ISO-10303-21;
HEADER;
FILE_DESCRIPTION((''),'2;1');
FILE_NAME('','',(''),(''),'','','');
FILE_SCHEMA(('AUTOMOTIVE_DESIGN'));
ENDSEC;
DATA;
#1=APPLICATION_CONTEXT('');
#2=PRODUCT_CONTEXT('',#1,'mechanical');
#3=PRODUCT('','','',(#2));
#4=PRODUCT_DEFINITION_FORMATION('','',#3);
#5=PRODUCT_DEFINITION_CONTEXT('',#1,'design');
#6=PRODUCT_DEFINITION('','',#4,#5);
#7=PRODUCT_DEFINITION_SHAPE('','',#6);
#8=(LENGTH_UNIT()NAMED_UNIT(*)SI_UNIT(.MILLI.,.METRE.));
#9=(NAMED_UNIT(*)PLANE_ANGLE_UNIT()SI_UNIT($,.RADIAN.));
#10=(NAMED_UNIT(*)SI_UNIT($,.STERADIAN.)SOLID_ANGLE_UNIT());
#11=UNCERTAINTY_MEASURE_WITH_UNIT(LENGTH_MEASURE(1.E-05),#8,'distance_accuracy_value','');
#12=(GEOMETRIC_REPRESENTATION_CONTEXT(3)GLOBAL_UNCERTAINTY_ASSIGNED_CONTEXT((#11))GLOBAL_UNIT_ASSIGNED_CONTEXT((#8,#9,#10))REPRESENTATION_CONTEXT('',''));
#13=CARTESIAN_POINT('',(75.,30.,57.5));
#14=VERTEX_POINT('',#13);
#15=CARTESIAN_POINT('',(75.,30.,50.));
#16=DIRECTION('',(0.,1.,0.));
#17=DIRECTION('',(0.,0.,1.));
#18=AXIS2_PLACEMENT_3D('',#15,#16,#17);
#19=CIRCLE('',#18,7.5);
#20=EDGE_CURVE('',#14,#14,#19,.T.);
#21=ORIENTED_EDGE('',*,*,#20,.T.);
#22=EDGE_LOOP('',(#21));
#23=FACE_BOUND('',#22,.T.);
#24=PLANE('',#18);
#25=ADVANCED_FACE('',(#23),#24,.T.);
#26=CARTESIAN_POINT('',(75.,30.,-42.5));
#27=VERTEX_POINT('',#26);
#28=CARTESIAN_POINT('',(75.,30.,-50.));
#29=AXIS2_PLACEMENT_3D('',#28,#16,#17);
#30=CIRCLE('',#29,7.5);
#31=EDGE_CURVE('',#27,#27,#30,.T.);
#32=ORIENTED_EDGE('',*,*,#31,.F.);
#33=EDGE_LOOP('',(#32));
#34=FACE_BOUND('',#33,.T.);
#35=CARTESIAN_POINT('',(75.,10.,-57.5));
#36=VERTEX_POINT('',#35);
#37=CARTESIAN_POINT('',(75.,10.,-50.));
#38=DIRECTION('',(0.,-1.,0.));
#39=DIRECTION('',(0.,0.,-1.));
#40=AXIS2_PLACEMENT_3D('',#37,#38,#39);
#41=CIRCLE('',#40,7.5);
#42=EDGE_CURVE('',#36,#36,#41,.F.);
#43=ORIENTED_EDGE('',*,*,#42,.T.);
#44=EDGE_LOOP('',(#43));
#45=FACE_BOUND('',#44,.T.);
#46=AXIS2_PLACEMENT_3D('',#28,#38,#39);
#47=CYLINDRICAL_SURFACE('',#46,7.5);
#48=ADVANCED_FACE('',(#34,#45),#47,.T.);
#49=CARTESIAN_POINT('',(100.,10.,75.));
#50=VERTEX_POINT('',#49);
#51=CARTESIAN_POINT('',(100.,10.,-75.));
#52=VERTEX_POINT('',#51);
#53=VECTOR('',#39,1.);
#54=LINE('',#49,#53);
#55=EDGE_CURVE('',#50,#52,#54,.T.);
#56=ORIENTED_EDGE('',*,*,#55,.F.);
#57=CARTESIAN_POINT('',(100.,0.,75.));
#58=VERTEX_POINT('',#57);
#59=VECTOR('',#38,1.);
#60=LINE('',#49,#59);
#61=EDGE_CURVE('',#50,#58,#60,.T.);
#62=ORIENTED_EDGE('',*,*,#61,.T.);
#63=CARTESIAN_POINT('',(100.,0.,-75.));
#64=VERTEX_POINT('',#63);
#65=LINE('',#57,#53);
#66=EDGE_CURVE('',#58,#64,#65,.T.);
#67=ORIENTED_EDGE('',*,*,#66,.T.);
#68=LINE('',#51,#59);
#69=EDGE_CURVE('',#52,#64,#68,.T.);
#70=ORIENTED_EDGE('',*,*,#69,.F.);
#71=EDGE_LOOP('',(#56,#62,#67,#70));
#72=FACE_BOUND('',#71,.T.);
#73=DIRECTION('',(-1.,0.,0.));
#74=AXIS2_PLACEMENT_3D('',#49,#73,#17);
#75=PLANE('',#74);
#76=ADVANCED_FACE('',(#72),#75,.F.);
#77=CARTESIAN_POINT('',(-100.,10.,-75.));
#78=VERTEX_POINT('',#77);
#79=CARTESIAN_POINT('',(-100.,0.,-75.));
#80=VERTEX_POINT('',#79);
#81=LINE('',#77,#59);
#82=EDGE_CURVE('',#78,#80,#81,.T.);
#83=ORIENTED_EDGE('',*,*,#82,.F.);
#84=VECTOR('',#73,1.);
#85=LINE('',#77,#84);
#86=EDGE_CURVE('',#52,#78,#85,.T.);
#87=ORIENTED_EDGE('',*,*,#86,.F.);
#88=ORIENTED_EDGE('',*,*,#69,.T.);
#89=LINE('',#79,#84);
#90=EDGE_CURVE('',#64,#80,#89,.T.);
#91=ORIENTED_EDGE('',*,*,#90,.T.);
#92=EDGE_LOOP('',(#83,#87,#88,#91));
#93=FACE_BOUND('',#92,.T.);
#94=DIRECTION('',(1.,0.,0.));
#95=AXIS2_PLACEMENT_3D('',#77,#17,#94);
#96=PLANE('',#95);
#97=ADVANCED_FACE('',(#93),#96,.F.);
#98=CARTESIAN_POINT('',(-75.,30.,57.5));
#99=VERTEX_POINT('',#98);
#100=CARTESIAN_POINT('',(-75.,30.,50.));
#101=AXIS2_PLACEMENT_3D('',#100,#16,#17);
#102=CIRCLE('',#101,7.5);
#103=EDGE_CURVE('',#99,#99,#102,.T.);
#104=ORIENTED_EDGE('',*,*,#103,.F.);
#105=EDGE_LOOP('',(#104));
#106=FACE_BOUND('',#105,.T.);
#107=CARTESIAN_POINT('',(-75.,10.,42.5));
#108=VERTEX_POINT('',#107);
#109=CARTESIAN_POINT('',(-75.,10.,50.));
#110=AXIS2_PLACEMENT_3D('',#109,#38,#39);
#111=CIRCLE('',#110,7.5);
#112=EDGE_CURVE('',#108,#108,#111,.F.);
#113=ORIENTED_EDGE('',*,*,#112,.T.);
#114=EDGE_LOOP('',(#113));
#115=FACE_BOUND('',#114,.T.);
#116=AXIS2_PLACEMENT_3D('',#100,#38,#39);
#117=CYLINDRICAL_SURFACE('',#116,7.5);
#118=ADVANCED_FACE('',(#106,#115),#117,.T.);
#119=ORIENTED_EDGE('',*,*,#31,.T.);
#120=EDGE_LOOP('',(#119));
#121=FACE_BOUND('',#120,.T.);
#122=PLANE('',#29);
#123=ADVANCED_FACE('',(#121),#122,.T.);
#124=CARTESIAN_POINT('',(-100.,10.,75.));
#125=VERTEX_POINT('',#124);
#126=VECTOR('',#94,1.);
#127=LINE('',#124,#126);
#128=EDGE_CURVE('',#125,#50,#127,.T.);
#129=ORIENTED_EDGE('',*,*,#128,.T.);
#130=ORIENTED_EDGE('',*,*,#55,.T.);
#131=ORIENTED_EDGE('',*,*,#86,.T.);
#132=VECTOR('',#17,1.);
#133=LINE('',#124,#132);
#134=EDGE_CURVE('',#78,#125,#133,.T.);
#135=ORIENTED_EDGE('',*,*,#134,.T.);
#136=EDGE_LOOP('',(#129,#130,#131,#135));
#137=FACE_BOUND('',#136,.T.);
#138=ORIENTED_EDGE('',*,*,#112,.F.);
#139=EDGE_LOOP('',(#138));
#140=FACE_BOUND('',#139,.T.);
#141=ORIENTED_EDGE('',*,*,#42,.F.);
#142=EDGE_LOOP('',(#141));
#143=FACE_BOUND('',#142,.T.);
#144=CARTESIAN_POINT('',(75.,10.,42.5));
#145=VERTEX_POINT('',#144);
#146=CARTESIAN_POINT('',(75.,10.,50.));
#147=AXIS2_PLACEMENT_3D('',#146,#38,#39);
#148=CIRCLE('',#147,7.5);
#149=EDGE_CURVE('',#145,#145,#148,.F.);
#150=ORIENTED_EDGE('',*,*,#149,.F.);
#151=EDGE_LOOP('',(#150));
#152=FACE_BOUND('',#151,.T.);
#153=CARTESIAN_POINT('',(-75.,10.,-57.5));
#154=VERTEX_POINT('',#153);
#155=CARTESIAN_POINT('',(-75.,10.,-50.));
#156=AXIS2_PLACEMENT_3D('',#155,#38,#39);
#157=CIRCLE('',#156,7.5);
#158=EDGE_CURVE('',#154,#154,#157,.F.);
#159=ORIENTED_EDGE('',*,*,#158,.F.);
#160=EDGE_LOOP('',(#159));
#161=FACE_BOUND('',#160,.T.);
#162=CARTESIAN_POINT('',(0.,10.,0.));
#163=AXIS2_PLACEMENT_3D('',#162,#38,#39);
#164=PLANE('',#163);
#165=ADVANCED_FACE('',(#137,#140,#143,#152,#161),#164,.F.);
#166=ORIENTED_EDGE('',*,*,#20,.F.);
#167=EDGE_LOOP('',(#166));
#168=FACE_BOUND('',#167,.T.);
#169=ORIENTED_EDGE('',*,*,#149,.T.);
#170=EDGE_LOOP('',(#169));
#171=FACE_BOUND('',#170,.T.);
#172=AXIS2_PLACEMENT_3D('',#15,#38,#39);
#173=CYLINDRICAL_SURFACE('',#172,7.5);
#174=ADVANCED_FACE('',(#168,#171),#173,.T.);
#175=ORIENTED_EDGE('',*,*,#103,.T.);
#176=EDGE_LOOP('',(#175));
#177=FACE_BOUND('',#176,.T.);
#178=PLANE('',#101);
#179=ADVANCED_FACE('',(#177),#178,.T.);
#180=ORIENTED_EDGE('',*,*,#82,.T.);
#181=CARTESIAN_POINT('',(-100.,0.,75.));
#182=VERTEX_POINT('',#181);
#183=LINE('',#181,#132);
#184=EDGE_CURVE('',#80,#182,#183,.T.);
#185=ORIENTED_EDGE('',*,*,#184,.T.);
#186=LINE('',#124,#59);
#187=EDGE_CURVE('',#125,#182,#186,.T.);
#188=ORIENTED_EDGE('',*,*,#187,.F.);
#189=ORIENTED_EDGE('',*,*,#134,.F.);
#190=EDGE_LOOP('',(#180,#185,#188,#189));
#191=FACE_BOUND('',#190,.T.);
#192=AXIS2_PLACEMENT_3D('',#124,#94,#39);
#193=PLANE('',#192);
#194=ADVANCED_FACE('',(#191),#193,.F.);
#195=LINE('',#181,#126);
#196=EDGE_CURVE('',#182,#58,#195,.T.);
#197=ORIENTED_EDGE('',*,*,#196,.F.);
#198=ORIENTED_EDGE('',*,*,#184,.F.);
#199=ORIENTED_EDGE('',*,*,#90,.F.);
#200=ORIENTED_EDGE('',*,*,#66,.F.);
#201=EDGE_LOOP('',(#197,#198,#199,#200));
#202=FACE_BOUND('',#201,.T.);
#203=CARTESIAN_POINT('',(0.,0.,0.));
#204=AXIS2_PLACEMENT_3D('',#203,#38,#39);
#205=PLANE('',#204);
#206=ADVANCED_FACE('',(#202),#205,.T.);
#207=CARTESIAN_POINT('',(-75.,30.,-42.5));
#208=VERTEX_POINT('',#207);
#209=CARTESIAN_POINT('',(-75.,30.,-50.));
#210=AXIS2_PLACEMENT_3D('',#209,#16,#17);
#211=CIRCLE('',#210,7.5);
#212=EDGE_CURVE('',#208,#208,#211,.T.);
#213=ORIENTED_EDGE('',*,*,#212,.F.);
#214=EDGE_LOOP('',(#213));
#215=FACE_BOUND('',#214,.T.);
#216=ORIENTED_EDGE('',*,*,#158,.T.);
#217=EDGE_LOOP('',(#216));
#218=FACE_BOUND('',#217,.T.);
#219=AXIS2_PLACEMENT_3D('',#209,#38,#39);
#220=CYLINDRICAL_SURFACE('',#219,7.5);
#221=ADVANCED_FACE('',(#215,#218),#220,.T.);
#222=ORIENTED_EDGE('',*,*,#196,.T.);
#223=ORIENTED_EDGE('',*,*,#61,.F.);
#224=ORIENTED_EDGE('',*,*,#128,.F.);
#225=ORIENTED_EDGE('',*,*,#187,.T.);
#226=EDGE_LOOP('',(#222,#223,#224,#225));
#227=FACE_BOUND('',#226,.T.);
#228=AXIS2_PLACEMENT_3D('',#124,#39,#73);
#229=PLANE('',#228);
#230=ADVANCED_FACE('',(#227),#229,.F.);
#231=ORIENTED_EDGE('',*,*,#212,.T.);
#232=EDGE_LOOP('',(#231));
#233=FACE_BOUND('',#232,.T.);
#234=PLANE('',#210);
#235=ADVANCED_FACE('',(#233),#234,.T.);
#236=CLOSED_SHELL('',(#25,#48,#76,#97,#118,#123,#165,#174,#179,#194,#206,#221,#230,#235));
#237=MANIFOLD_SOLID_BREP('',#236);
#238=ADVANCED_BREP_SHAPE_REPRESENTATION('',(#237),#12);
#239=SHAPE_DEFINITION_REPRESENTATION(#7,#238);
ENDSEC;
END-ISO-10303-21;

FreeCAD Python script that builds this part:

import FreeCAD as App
import Part
import Sketcher

V = App.Vector


def add_polygon(sketch, points):
    """Adds a closed chain of lines whose ends are joined by coincident constraints."""
    first, n = sketch.GeometryCount, len(points)
    for a, b in zip(points, points[1:] + points[:1]):
        sketch.addGeometry(Part.LineSegment(App.Vector(*a, 0), App.Vector(*b, 0)), False)
    for i in range(n):
        sketch.addConstraint(Sketcher.Constraint("Coincident", first + i, 2, first + (i + 1) % n, 1))

doc = App.newDocument("Part")
body = doc.addObject("PartDesign::Body", "Body")

# Sketch on XZ plane
sketch1 = doc.addObject("Sketcher::SketchObject", "Sketch")
body.addObject(sketch1)
sketch1.AttachmentSupport = (doc.XZ_Plane, [""])
sketch1.MapMode = "FlatFace"
add_polygon(sketch1, [(-100, -75), (-100, 75), (100, 75), (100, -75)])  # lines 0-3
sketch1.addConstraint(Sketcher.Constraint("Vertical", 0))
sketch1.addConstraint(Sketcher.Constraint("Horizontal", 1))
sketch1.addConstraint(Sketcher.Constraint("Vertical", 2))
sketch1.addConstraint(Sketcher.Constraint("Horizontal", 3))
sketch1.addConstraint(Sketcher.Constraint("Symmetric", 0, 2, 2, 2, -1, 1))
sketch1.addConstraint(Sketcher.Constraint("DistanceX", 1, 1, 1, 2, 200.0))
sketch1.addConstraint(Sketcher.Constraint("DistanceY", 0, 1, 0, 2, 150.0))
pad1 = doc.addObject("PartDesign::Pad", "Pad")
body.addObject(pad1)
pad1.Profile = sketch1
pad1.Length = 10
pad1.Reversed = True

# Sketch on XZ plane
sketch2 = doc.addObject("Sketcher::SketchObject", "Sketch001")
body.addObject(sketch2)
sketch2.AttachmentSupport = (doc.XZ_Plane, [""])
sketch2.MapMode = "FlatFace"
sketch2.AttachmentOffset = App.Placement(V(0, 0, -10), App.Rotation())
sketch2.addGeometry(Part.Circle(V(75, -50, 0), V(0, 0, 1), 8), False)
sketch2.addGeometry(Part.Circle(V(75, 50, 0), V(0, 0, 1), 8), False)
sketch2.addGeometry(Part.Circle(V(-75, 50, 0), V(0, 0, 1), 8), False)
sketch2.addGeometry(Part.Circle(V(-75, -50, 0), V(0, 0, 1), 8), False)
sketch2.addConstraint(Sketcher.Constraint("Equal", 0, 1))
sketch2.addConstraint(Sketcher.Constraint("Equal", 1, 2))
sketch2.addConstraint(Sketcher.Constraint("Equal", 2, 3))
sketch2.addConstraint(Sketcher.Constraint("Symmetric", 0, 3, 2, 3, -1, 1))
sketch2.addConstraint(Sketcher.Constraint("Symmetric", 1, 3, 3, 3, -1, 1))
sketch2.addConstraint(Sketcher.Constraint("Symmetric", 1, 3, 2, 3, -2))
sketch2.addConstraint(Sketcher.Constraint("Diameter", 0, 15.0))
sketch2.addConstraint(Sketcher.Constraint("DistanceX", -1, 1, 0, 3, 75.0))
sketch2.addConstraint(Sketcher.Constraint("DistanceY", 0, 3, -1, 1, 50.0))
pad2 = doc.addObject("PartDesign::Pad", "Pad001")
body.addObject(pad2)
pad2.Profile = sketch2
pad2.Length = 20
pad2.Reversed = True

doc.recompute()
